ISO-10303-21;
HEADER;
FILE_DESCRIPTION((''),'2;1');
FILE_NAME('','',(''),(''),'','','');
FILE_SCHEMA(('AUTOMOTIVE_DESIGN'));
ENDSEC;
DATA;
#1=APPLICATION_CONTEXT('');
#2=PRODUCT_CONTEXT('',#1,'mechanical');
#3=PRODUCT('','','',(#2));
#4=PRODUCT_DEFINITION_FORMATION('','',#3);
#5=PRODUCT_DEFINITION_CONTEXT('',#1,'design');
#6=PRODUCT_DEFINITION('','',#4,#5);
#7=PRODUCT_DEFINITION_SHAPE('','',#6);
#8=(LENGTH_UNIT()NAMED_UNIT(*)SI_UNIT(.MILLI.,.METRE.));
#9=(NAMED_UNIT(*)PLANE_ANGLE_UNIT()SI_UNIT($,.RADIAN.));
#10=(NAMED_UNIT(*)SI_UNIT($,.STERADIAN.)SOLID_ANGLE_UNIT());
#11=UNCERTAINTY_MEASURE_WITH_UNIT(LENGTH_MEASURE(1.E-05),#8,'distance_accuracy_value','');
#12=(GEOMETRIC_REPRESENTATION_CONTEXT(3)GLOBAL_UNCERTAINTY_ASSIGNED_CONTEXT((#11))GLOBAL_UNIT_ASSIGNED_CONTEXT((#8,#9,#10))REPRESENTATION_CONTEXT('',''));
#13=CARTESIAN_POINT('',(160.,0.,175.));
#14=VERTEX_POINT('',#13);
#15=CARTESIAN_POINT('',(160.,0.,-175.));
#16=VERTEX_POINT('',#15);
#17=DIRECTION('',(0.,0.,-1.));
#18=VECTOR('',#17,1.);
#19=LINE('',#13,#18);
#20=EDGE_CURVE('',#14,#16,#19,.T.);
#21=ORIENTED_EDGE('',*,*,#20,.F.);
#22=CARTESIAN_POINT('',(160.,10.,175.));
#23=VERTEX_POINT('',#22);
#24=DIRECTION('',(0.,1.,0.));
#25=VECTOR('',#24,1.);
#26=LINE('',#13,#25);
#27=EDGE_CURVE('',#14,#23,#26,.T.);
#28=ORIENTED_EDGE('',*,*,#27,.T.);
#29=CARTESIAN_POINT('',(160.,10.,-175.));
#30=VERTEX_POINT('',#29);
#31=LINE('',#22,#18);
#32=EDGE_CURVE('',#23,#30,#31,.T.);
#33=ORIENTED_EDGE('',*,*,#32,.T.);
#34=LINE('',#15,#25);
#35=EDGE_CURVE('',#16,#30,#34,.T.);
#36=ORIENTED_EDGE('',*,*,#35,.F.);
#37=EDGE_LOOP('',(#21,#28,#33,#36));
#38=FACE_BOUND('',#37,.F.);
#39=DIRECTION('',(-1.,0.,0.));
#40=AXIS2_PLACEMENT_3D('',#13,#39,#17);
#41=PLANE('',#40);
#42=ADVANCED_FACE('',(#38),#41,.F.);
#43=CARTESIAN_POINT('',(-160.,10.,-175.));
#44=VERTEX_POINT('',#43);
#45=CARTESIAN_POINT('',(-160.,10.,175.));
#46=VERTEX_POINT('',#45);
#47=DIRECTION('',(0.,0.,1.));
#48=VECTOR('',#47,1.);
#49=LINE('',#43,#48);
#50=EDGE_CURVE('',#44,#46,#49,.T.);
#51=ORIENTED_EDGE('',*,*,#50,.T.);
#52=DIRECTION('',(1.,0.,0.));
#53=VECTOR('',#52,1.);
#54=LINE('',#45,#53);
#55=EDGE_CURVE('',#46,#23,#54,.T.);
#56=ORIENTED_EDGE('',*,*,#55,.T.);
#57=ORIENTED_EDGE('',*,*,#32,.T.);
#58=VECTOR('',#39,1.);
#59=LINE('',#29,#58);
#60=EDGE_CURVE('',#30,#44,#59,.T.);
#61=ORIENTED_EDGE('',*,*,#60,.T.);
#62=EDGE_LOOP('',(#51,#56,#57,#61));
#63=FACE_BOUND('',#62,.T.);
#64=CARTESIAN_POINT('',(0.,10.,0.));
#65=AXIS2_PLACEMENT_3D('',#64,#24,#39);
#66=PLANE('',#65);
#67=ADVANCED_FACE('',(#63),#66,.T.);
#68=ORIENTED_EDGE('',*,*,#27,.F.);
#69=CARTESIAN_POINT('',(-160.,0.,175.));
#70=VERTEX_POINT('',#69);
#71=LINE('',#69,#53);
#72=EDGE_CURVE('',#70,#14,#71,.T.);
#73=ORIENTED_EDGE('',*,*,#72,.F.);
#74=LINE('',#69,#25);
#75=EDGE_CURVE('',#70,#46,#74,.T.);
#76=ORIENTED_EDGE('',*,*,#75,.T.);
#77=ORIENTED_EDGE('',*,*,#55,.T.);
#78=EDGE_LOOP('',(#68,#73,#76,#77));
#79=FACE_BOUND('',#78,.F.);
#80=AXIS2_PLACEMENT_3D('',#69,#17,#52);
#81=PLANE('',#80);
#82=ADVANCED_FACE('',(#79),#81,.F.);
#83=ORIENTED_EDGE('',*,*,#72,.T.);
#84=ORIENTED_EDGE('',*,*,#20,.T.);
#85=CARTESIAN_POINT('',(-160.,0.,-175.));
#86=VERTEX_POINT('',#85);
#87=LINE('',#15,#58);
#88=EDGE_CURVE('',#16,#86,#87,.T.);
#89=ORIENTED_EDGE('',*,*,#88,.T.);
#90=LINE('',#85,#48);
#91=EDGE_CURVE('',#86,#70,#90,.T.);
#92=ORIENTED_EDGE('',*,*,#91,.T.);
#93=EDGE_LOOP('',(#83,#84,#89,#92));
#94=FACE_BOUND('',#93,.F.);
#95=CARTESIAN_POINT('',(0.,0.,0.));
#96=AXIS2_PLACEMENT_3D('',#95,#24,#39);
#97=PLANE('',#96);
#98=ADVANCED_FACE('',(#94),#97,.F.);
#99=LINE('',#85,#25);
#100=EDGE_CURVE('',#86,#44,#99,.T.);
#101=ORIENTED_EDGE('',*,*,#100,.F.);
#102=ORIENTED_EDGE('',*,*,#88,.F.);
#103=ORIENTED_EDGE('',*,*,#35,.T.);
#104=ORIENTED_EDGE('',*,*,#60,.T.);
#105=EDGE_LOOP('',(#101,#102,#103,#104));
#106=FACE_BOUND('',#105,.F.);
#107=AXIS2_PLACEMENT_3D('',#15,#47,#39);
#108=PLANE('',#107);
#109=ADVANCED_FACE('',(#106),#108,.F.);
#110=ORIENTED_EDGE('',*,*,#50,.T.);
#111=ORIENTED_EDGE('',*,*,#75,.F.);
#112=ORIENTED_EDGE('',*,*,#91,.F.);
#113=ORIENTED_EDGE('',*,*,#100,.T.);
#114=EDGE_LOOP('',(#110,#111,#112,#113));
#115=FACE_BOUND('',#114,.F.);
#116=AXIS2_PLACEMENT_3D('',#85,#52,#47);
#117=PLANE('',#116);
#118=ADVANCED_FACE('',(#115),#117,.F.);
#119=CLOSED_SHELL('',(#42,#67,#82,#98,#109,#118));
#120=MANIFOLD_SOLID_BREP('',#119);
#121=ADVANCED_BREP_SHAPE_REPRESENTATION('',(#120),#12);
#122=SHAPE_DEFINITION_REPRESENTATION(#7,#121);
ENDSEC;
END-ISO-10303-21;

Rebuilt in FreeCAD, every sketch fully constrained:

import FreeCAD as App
import Part
import Sketcher

doc = App.newDocument("Part")
body = doc.addObject("PartDesign::Body", "Body")

# Sketch on XZ plane
sketch1 = body.newObject("Sketcher::SketchObject", "Sketch")
sketch1.AttachmentSupport = (doc.getObject("XZ_Plane"), [""])
sketch1.MapMode = "FlatFace"
sketch1.addGeometry(Part.LineSegment(App.Vector(160, 175, 0), App.Vector(160, -175, 0)), False)
sketch1.addGeometry(Part.LineSegment(App.Vector(160, -175, 0), App.Vector(-160, -175, 0)), False)
sketch1.addGeometry(Part.LineSegment(App.Vector(-160, -175, 0), App.Vector(-160, 175, 0)), False)
sketch1.addGeometry(Part.LineSegment(App.Vector(-160, 175, 0), App.Vector(160, 175, 0)), False)
sketch1.addConstraint(Sketcher.Constraint("Coincident", 0, 2, 1, 1))
sketch1.addConstraint(Sketcher.Constraint("Coincident", 1, 2, 2, 1))
sketch1.addConstraint(Sketcher.Constraint("Coincident", 2, 2, 3, 1))
sketch1.addConstraint(Sketcher.Constraint("Coincident", 3, 2, 0, 1))
sketch1.addConstraint(Sketcher.Constraint("Vertical", 0))
sketch1.addConstraint(Sketcher.Constraint("Horizontal", 1))
sketch1.addConstraint(Sketcher.Constraint("Vertical", 2))
sketch1.addConstraint(Sketcher.Constraint("Horizontal", 3))
sketch1.addConstraint(Sketcher.Constraint("Symmetric", 0, 2, 2, 2, -1, 1))
sketch1.addConstraint(Sketcher.Constraint("DistanceX", 1, 2, 1, 1, 320.0))
sketch1.addConstraint(Sketcher.Constraint("DistanceY", 0, 2, 0, 1, 350.0))
pad1 = body.newObject("PartDesign::Pad", "Pad")
pad1.Profile = sketch1
pad1.Length = 10
pad1.Reversed = True

doc.recompute()
